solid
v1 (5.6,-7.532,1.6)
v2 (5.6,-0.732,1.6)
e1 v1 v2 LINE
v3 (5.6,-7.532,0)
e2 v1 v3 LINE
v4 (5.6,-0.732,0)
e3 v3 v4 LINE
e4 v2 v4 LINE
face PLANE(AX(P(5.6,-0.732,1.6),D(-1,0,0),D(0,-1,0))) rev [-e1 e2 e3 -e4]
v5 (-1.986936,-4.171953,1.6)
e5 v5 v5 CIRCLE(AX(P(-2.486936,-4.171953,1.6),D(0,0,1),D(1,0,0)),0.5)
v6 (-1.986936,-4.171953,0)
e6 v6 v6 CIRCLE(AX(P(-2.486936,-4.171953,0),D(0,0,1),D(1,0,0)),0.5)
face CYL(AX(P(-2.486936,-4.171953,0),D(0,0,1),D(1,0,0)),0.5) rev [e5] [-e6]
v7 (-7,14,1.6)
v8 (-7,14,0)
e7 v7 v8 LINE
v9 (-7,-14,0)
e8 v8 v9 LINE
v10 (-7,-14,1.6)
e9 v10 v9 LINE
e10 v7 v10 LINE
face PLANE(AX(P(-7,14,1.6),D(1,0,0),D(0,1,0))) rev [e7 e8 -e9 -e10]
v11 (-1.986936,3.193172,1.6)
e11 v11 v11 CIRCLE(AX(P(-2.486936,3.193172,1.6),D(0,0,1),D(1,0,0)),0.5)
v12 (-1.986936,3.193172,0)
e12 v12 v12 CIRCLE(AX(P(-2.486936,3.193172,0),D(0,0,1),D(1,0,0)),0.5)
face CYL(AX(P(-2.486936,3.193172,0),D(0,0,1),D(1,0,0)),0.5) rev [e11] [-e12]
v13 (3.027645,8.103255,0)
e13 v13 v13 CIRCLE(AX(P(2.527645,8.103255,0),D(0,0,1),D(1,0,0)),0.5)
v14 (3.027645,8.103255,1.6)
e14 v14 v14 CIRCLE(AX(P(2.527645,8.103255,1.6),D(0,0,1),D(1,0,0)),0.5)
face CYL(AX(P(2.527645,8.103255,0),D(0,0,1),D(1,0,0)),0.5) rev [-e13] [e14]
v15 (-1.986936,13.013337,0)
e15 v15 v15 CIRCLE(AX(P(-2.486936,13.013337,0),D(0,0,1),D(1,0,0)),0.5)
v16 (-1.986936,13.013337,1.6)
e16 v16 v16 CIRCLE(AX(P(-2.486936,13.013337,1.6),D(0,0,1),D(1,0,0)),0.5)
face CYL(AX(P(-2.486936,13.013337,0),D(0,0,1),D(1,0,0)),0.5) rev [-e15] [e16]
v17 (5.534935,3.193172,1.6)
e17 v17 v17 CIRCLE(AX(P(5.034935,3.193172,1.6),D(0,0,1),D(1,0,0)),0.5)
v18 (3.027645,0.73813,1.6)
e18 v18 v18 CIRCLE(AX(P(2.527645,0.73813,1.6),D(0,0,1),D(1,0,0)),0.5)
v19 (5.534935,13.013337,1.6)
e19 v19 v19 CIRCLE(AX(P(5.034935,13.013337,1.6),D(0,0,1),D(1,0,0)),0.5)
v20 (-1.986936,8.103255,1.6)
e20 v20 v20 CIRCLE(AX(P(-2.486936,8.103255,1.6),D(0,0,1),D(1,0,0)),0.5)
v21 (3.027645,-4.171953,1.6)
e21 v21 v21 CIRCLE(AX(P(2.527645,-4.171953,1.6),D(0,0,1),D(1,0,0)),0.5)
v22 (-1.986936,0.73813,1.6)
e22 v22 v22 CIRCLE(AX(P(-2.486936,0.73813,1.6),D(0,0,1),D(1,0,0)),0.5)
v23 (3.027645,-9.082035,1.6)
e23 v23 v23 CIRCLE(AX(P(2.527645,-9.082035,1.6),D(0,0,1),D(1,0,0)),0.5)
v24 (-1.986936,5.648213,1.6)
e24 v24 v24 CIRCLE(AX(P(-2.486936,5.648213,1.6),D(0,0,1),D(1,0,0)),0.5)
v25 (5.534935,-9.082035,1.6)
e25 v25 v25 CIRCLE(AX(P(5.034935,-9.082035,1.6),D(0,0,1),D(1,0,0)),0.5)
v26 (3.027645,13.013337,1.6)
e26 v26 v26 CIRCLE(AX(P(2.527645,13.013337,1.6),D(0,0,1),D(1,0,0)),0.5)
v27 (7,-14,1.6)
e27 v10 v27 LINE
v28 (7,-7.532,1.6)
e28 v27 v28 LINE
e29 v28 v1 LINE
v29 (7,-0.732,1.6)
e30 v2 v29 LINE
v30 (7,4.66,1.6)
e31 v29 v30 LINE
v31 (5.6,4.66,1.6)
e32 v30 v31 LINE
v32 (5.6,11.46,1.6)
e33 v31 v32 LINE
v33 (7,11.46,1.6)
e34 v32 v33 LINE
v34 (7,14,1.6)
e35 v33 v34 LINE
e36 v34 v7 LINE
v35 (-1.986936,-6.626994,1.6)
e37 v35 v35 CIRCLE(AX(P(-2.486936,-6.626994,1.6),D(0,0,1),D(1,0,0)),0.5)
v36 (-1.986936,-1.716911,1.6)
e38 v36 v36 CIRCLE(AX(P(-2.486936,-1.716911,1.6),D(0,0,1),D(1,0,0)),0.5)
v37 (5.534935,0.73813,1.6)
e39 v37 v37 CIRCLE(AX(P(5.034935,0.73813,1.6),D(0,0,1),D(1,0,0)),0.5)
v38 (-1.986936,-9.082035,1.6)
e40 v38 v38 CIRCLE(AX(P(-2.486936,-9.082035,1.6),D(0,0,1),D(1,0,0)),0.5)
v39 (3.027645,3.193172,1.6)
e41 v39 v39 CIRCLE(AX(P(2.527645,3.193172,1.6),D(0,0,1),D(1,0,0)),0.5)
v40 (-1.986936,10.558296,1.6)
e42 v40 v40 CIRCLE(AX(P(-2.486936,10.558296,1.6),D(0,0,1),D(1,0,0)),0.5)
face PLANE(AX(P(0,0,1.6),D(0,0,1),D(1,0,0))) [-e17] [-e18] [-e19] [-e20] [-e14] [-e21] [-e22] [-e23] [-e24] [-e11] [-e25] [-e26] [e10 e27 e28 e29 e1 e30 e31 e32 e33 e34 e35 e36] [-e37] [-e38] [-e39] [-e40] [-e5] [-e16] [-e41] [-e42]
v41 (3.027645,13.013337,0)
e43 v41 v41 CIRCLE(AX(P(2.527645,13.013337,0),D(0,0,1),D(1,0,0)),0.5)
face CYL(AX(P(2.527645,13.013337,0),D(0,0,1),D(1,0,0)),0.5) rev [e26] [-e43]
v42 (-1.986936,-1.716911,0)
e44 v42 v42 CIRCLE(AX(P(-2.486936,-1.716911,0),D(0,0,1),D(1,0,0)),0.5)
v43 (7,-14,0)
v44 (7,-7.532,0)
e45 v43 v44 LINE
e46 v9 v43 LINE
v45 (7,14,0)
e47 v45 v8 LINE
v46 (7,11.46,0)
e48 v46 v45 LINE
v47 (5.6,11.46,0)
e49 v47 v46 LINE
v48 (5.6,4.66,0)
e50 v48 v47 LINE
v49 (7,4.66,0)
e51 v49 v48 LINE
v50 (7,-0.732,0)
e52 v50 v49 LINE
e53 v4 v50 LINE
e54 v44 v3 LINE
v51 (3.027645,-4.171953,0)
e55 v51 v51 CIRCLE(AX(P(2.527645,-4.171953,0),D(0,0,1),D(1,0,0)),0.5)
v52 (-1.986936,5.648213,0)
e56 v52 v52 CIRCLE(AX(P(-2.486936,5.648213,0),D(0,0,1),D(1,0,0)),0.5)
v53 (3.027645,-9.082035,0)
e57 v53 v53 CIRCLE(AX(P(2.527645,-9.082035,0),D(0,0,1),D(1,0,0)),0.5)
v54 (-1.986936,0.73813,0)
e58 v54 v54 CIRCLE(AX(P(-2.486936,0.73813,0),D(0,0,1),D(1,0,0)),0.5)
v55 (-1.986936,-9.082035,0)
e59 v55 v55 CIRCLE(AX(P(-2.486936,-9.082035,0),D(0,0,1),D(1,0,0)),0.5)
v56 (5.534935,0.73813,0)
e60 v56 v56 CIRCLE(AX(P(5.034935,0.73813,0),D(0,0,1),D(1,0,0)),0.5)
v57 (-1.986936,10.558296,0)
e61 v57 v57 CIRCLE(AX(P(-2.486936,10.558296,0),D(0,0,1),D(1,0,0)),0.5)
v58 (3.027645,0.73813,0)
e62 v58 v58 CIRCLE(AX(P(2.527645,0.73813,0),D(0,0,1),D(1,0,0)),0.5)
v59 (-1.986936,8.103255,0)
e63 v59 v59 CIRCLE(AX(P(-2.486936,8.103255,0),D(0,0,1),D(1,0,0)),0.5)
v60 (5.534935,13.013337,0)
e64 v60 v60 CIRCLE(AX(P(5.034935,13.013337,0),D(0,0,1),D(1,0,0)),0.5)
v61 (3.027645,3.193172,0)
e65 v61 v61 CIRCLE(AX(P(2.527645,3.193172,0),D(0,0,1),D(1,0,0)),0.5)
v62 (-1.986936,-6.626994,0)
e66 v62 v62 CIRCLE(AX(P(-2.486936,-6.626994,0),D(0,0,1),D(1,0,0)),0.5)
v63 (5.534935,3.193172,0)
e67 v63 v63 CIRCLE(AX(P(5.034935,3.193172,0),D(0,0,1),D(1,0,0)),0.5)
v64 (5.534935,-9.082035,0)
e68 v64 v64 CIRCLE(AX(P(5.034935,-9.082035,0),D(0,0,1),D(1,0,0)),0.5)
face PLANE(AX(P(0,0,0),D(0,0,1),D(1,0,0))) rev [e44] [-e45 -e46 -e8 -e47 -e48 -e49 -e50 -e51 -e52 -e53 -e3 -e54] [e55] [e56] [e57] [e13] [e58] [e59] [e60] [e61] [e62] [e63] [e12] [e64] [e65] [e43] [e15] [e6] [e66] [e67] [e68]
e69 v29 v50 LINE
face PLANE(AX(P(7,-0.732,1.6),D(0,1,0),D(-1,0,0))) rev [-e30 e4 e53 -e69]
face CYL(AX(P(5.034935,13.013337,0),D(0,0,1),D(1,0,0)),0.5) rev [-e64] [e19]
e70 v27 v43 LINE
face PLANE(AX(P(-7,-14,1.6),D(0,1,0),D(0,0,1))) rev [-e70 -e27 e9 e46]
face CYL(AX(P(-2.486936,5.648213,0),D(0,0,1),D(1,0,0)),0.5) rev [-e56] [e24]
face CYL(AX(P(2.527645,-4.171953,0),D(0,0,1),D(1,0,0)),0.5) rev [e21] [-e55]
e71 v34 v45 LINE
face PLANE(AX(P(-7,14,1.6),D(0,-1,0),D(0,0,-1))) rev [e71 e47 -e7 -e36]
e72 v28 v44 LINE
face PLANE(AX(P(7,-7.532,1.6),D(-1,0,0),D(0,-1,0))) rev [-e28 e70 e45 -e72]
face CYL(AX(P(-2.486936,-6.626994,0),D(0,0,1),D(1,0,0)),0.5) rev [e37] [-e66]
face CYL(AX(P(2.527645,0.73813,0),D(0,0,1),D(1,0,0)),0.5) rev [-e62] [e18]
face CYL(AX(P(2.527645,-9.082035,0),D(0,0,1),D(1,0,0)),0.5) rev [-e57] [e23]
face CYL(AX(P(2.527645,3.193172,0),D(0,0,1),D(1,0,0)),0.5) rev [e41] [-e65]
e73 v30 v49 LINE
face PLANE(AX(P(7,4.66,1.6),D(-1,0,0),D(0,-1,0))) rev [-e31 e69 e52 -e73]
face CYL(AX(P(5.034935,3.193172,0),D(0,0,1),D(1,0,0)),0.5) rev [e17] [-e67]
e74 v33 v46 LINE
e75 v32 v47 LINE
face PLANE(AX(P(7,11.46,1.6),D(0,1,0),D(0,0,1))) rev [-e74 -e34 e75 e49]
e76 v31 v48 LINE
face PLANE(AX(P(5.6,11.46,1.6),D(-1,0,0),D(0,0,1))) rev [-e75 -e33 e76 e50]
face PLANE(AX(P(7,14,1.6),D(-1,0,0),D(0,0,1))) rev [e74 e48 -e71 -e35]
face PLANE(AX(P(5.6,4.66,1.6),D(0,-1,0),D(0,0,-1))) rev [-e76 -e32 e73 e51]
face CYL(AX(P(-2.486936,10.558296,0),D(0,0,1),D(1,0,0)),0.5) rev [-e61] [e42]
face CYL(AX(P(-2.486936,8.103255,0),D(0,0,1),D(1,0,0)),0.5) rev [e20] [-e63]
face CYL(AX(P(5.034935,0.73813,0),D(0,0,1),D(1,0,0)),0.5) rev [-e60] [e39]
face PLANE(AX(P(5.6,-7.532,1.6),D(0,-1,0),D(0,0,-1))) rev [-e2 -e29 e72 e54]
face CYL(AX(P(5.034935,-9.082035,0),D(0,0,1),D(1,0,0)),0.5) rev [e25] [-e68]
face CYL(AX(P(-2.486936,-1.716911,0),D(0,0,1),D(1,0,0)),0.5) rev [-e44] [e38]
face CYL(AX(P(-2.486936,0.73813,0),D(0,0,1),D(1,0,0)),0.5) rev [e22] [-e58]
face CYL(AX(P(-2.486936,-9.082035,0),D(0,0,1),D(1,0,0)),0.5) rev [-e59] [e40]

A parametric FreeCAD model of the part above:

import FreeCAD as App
import Part
import Sketcher

V = App.Vector
Q = App.Units.Quantity

doc = App.newDocument("Part")
body = doc.addObject("PartDesign::Body", "Body")

sketch1 = body.newObject("Sketcher::SketchObject", "Sketch")
sketch1.AttachmentSupport = (doc.getObject("XY_Plane"), [""])
sketch1.MapMode = "FlatFace"
sketch1.addGeometry([
    Part.LineSegment(V(5.6, 11.5, 0), V(7, 11.5, 0)),
    Part.LineSegment(V(7, 11.5, 0), V(7, 14, 0)),
    Part.LineSegment(V(7, 14, 0), V(-7, 14, 0)),
    Part.LineSegment(V(-7, 14, 0), V(-7, -14, 0)),
    Part.LineSegment(V(-7, -14, 0), V(7, -14, 0)),
    Part.LineSegment(V(7, -14, 0), V(7, -7.5, 0)),
    Part.LineSegment(V(7, -7.5, 0), V(5.6, -7.5, 0)),
    Part.LineSegment(V(5.6, -7.5, 0), V(5.6, -0.7, 0)),
    Part.LineSegment(V(5.6, -0.7, 0), V(7, -0.7, 0)),
    Part.LineSegment(V(7, -0.7, 0), V(7, 4.7, 0)),
    Part.LineSegment(V(7, 4.7, 0), V(5.6, 4.7, 0)),
    Part.LineSegment(V(5.6, 4.7, 0), V(5.6, 11.5, 0)),
], False)
sketch1.addConstraint([
    Sketcher.Constraint("Coincident", 0, 2, 1, 1),
    Sketcher.Constraint("Coincident", 1, 2, 2, 1),
    Sketcher.Constraint("Coincident", 2, 2, 3, 1),
    Sketcher.Constraint("Coincident", 3, 2, 4, 1),
    Sketcher.Constraint("Coincident", 4, 2, 5, 1),
    Sketcher.Constraint("Coincident", 5, 2, 6, 1),
    Sketcher.Constraint("Coincident", 6, 2, 7, 1),
    Sketcher.Constraint("Coincident", 7, 2, 8, 1),
    Sketcher.Constraint("Coincident", 8, 2, 9, 1),
    Sketcher.Constraint("Coincident", 9, 2, 10, 1),
    Sketcher.Constraint("Coincident", 10, 2, 11, 1),
    Sketcher.Constraint("Coincident", 11, 2, 0, 1),
    Sketcher.Constraint("Horizontal", 0),
    Sketcher.Constraint("Vertical", 1),
    Sketcher.Constraint("Horizontal", 2),
    Sketcher.Constraint("Vertical", 3),
    Sketcher.Constraint("Horizontal", 4),
    Sketcher.Constraint("Vertical", 5),
    Sketcher.Constraint("Horizontal", 6),
    Sketcher.Constraint("Vertical", 7),
    Sketcher.Constraint("Horizontal", 8),
    Sketcher.Constraint("Vertical", 9),
    Sketcher.Constraint("Horizontal", 10),
    Sketcher.Constraint("Vertical", 11),
    Sketcher.Constraint("Symmetric", 1, 2, 3, 2, -1, 1),
    Sketcher.Constraint("Vertical", 1, 2, 4, 2),
    Sketcher.Constraint("Vertical", 5, 2, 8, 2),
    Sketcher.Constraint("Vertical", 7, 2, 10, 2),
    Sketcher.Constraint("Equal", 7, 11),
    Sketcher.Constraint("DistanceX", 2, 2, 2, 1, Q("14 mm")),
    Sketcher.Constraint("DistanceY", 3, 2, 3, 1, Q("28 mm")),
    Sketcher.Constraint("DistanceX", 0, 1, 0, 2, Q("1.4 mm")),
    Sketcher.Constraint("DistanceY", 7, 1, 7, 2, Q("6.8 mm")),
    Sketcher.Constraint("DistanceY", 1, 1, 1, 2, Q("2.54 mm")),
    Sketcher.Constraint("DistanceY", 5, 1, 5, 2, Q("6.468 mm")),
])
pad1 = body.newObject("PartDesign::Pad", "Pad")
pad1.Profile = sketch1
pad1.Length = 1.6

sketch2 = body.newObject("Sketcher::SketchObject", "Sketch001")
sketch2.AttachmentSupport = (doc.getObject("XY_Plane"), [""])
sketch2.MapMode = "FlatFace"
sketch2.AttachmentOffset = App.Placement(V(0, 0, 1.6), App.Rotation())
sketch2.addGeometry([
    Part.Circle(V(-2.5, 13, 0), V(0, 0, 1), 0.5),
    Part.Circle(V(-2.5, 10.6, 0), V(0, 0, 1), 0.5),
    Part.Circle(V(-2.5, 8.1, 0), V(0, 0, 1), 0.5),
    Part.Circle(V(-2.5, 5.6, 0), V(0, 0, 1), 0.5),
    Part.Circle(V(-2.5, 3.2, 0), V(0, 0, 1), 0.5),
    Part.Circle(V(-2.5, 0.7, 0), V(0, 0, 1), 0.5),
    Part.Circle(V(-2.5, -1.7, 0), V(0, 0, 1), 0.5),
    Part.Circle(V(-2.5, -6.6, 0), V(0, 0, 1), 0.5),
    Part.Circle(V(-2.5, -9.1, 0), V(0, 0, 1), 0.5),
    Part.Circle(V(2.5, -4.2, 0), V(0, 0, 1), 0.5),
    Part.Circle(V(2.5, 8.1, 0), V(0, 0, 1), 0.5),
    Part.Circle(V(-2.5, -4.2, 0), V(0, 0, 1), 0.5),
    Part.Circle(V(2.5, 0.7, 0), V(0, 0, 1), 0.5),
    Part.Circle(V(2.5, 3.2, 0), V(0, 0, 1), 0.5),
    Part.Circle(V(5, 3.2, 0), V(0, 0, 1), 0.5),
    Part.Circle(V(5, 0.7, 0), V(0, 0, 1), 0.5),
    Part.Circle(V(2.5, 13, 0), V(0, 0, 1), 0.5),
    Part.Circle(V(5, 13, 0), V(0, 0, 1), 0.5),
    Part.Circle(V(5, -9.1, 0), V(0, 0, 1), 0.5),
    Part.Circle(V(2.5, -9.1, 0), V(0, 0, 1), 0.5),
], False)
sketch2.addConstraint([
    Sketcher.Constraint("Equal", 0, 1),
    Sketcher.Constraint("Equal", 1, 2),
    Sketcher.Constraint("Equal", 2, 3),
    Sketcher.Constraint("Equal", 3, 4),
    Sketcher.Constraint("Equal", 4, 5),
    Sketcher.Constraint("Equal", 5, 6),
    Sketcher.Constraint("Equal", 6, 7),
    Sketcher.Constraint("Equal", 7, 8),
    Sketcher.Constraint("Equal", 8, 9),
    Sketcher.Constraint("Equal", 9, 10),
    Sketcher.Constraint("Equal", 10, 11),
    Sketcher.Constraint("Equal", 11, 12),
    Sketcher.Constraint("Equal", 12, 13),
    Sketcher.Constraint("Equal", 13, 14),
    Sketcher.Constraint("Equal", 14, 15),
    Sketcher.Constraint("Equal", 15, 16),
    Sketcher.Constraint("Equal", 16, 17),
    Sketcher.Constraint("Equal", 17, 18),
    Sketcher.Constraint("Equal", 18, 19),
    Sketcher.Constraint("Horizontal", 2, 3, 10, 3),
    Sketcher.Constraint("Horizontal", 9, 3, 11, 3),
    Sketcher.Constraint("Horizontal", 5, 3, 12, 3),
    Sketcher.Constraint("Horizontal", 4, 3, 13, 3),
    Sketcher.Constraint("Horizontal", 13, 3, 14, 3),
    Sketcher.Constraint("Horizontal", 12, 3, 15, 3),
    Sketcher.Constraint("Horizontal", 0, 3, 16, 3),
    Sketcher.Constraint("Horizontal", 16, 3, 17, 3),
    Sketcher.Constraint("Horizontal", 8, 3, 18, 3),
    Sketcher.Constraint("Horizontal", 18, 3, 19, 3),
    Sketcher.Constraint("Vertical", 0, 3, 1, 3),
    Sketcher.Constraint("Vertical", 1, 3, 2, 3),
    Sketcher.Constraint("Vertical", 2, 3, 3, 3),
    Sketcher.Constraint("Vertical", 3, 3, 4, 3),
    Sketcher.Constraint("Vertical", 4, 3, 5, 3),
    Sketcher.Constraint("Vertical", 5, 3, 6, 3),
    Sketcher.Constraint("Vertical", 6, 3, 7, 3),
    Sketcher.Constraint("Vertical", 7, 3, 8, 3),
    Sketcher.Constraint("Vertical", 9, 3, 10, 3),
    Sketcher.Constraint("Vertical", 8, 3, 11, 3),
    Sketcher.Constraint("Vertical", 10, 3, 12, 3),
    Sketcher.Constraint("Vertical", 12, 3, 13, 3),
    Sketcher.Constraint("Vertical", 14, 3, 15, 3),
    Sketcher.Constraint("Vertical", 13, 3, 16, 3),
    Sketcher.Constraint("Vertical", 15, 3, 17, 3),
    Sketcher.Constraint("Vertical", 17, 3, 18, 3),
    Sketcher.Constraint("Vertical", 16, 3, 19, 3),
    Sketcher.Constraint("Diameter", 0, Q("1 mm")),
    Sketcher.Constraint("DistanceY", -1, 1, 4, 3, Q("3.193172 mm")),
    Sketcher.Constraint("DistanceY", -1, 1, 5, 3, Q("0.73813 mm")),
    Sketcher.Constraint("DistanceY", 6, 3, -1, 1, Q("1.716911 mm")),
    Sketcher.Constraint("DistanceY", 1, 3, 0, 3, Q("2.455041 mm")),
    Sketcher.Constraint("DistanceY", 2, 3, 1, 3, Q("2.455041 mm")),
    Sketcher.Constraint("DistanceY", 3, 3, 2, 3, Q("2.455041 mm")),
    Sketcher.Constraint("DistanceY", 4, 3, 3, 3, Q("2.455041 mm")),
    Sketcher.Constraint("DistanceY", 7, 3, 2, 3, Q("14.730249 mm")),
    Sketcher.Constraint("DistanceY", 8, 3, 7, 3, Q("2.455041 mm")),
    Sketcher.Constraint("DistanceX", 6, 3, 9, 3, Q("5.014581 mm")),
    Sketcher.Constraint("DistanceY", 9, 3, 6, 3, Q("2.455041 mm")),
    Sketcher.Constraint("DistanceX", 13, 3, 14, 3, Q("2.50729 mm")),
    Sketcher.Constraint("DistanceX", 0, 3, -1, 1, Q("2.486936 mm")),
])
pocket1 = body.newObject("PartDesign::Pocket", "Pocket")
pocket1.Profile = sketch2
pocket1.Type = "ThroughAll"

doc.recompute()
